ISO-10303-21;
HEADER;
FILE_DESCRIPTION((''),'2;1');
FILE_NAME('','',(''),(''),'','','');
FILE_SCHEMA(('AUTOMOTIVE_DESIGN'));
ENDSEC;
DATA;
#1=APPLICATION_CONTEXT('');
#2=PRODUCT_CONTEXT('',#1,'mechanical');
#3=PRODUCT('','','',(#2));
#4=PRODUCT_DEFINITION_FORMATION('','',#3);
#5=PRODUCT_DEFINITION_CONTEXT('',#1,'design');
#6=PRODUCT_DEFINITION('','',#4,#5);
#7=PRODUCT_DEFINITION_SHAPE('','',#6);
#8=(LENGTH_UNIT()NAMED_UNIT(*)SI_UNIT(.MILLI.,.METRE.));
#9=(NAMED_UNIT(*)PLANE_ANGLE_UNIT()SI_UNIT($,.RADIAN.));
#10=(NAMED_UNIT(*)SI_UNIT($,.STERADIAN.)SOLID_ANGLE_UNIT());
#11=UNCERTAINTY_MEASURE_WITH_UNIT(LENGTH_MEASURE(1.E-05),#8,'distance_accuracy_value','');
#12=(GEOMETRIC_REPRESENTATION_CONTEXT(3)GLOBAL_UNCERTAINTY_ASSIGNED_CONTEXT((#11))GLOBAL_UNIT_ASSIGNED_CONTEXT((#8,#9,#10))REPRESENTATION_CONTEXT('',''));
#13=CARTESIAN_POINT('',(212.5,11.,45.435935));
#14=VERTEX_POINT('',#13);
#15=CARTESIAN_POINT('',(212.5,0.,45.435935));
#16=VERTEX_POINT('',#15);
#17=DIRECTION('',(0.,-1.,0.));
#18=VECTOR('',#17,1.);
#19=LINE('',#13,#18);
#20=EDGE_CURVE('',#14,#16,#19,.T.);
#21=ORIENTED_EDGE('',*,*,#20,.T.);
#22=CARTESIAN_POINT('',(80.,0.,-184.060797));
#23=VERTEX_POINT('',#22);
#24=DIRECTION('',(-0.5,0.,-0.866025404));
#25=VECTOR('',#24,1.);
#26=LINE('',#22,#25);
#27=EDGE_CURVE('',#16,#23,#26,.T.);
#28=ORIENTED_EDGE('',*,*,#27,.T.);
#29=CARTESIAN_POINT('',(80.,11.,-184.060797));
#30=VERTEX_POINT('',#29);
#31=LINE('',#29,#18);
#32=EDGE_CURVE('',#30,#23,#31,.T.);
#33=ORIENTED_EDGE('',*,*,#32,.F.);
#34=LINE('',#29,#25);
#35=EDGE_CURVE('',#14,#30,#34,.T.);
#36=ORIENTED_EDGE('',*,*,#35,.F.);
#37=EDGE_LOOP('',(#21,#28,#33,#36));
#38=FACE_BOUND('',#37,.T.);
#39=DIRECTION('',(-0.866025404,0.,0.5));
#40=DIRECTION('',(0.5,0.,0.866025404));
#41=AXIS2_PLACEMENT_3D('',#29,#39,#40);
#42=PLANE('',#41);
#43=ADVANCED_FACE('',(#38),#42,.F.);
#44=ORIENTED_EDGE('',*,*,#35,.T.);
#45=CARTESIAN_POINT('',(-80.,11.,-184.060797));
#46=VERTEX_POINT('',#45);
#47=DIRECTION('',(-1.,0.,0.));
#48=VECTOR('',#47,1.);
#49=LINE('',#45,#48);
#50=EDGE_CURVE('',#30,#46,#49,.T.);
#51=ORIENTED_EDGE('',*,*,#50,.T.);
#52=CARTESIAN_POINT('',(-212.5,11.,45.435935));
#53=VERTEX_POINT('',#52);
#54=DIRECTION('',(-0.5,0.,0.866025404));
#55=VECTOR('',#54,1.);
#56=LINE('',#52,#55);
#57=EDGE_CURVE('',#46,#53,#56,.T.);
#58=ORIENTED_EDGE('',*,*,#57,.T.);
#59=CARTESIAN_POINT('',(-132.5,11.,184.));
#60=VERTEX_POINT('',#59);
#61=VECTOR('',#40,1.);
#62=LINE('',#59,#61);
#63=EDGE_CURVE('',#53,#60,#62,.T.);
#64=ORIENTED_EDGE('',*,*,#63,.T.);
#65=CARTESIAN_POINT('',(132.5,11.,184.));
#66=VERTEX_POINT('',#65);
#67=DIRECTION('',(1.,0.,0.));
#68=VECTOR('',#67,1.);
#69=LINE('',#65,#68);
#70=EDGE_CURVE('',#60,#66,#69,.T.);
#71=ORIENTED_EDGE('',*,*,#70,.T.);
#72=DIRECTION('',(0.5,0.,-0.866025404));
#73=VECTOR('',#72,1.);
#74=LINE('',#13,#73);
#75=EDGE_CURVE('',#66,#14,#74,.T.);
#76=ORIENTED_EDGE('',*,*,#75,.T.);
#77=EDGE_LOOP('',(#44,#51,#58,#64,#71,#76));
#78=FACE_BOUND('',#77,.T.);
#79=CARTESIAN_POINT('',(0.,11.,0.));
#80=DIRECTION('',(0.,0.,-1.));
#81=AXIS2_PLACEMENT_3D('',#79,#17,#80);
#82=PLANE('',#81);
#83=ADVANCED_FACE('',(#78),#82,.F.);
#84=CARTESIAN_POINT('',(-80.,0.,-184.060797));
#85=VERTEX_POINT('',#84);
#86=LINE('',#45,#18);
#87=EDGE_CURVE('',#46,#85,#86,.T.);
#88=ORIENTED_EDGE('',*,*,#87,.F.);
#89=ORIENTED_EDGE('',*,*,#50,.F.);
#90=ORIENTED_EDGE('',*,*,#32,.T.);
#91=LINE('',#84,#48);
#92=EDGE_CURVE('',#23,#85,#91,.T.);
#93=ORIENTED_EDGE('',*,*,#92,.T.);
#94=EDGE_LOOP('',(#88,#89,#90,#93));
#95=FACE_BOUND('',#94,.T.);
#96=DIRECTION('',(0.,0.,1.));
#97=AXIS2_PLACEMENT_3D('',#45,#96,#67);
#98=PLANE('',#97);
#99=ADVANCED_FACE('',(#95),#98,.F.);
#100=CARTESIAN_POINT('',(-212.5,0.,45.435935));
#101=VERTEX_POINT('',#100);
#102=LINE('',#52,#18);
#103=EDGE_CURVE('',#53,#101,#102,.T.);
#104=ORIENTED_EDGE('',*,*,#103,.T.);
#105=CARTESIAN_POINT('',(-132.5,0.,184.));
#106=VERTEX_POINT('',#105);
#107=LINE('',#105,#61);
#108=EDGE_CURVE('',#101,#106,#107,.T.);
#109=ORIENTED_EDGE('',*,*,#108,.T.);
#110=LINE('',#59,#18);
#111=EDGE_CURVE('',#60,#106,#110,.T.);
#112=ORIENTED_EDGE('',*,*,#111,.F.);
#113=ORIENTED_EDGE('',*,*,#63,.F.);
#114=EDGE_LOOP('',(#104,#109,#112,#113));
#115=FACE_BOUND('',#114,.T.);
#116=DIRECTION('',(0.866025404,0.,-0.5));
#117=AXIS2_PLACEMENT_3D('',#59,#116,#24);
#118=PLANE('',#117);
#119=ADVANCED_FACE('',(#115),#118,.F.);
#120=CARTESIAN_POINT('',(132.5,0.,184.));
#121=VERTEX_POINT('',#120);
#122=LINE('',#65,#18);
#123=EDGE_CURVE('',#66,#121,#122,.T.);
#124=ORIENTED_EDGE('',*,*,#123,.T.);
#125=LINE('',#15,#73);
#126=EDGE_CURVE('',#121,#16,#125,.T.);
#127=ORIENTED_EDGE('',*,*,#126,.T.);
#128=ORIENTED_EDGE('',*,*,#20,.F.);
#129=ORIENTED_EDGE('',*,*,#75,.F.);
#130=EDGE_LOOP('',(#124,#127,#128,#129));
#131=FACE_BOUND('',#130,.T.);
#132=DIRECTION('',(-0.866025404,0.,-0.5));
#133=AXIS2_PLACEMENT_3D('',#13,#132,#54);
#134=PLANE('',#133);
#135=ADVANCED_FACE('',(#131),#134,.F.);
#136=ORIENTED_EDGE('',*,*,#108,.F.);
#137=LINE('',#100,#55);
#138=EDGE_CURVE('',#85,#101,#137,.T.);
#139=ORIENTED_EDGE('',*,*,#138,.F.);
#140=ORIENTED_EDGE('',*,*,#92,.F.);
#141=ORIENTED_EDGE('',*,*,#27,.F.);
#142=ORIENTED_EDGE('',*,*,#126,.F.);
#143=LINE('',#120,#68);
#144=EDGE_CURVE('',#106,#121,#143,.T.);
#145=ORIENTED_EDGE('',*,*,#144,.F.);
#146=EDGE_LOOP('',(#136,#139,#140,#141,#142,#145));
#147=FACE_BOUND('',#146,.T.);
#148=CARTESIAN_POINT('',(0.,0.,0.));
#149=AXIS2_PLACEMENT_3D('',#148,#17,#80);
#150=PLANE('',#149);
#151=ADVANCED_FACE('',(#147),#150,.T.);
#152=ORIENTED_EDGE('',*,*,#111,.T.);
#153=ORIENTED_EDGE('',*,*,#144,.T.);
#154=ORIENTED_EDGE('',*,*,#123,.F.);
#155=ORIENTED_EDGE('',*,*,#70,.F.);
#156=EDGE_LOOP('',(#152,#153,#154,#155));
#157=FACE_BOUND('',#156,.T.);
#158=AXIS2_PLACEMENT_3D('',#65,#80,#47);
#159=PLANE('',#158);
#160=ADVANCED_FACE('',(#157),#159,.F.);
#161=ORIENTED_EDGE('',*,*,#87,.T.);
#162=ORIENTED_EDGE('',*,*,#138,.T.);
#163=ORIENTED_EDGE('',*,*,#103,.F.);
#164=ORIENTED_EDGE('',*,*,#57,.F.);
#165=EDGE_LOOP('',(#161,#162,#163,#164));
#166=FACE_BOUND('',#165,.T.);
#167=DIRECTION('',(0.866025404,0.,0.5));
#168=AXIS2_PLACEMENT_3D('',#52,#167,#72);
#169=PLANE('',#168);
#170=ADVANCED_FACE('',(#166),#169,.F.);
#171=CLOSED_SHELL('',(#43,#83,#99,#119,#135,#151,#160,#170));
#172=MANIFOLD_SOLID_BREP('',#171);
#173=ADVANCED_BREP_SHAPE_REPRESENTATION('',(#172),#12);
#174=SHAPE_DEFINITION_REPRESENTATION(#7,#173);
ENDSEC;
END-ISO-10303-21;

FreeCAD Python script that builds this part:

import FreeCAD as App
import Part
import Sketcher

V = App.Vector
Q = App.Units.Quantity

doc = App.newDocument("Part")
body = doc.addObject("PartDesign::Body", "Body")

# Sketch on XZ plane
sketch1 = doc.addObject("Sketcher::SketchObject", "Sketch")
body.addObject(sketch1)
sketch1.AttachmentSupport = (doc.XZ_Plane, [""])
sketch1.MapMode = "FlatFace"
sketch1.addGeometry([
    Part.LineSegment(V(80, -184, 0), V(-80, -184, 0)),  # 0
    Part.LineSegment(V(-80, -184, 0), V(-212, 45, 0)),  # 1
    Part.LineSegment(V(-212, 45, 0), V(-132, 184, 0)),  # 2
    Part.LineSegment(V(-132, 184, 0), V(132, 184, 0)),  # 3
    Part.LineSegment(V(132, 184, 0), V(212, 45, 0)),  # 4
    Part.LineSegment(V(212, 45, 0), V(80, -184, 0)),  # 5
], False)
sketch1.addConstraint([
    Sketcher.Constraint("Coincident", 0, 2, 1, 1),
    Sketcher.Constraint("Coincident", 1, 2, 2, 1),
    Sketcher.Constraint("Coincident", 2, 2, 3, 1),
    Sketcher.Constraint("Coincident", 3, 2, 4, 1),
    Sketcher.Constraint("Coincident", 4, 2, 5, 1),
    Sketcher.Constraint("Coincident", 5, 2, 0, 1),
    Sketcher.Constraint("Horizontal", 0),
    Sketcher.Constraint("Horizontal", 3),
    Sketcher.Constraint("Symmetric", 1, 2, 4, 2, -2),
    Sketcher.Constraint("Parallel", 1, 4),
    Sketcher.Constraint("Parallel", 2, 5),
    Sketcher.Constraint("Equal", 2, 4),
    Sketcher.Constraint("DistanceX", 0, 2, 0, 1, 160.0),
    Sketcher.Constraint("DistanceX", 3, 1, 3, 2, 265.0),
    Sketcher.Constraint("Angle", 1, Q("120 deg")),
    Sketcher.Constraint("Distance", 1, 265.0),
    Sketcher.Constraint("DistanceY", -1, 1, 2, 2, 184.0),
])
pad1 = doc.addObject("PartDesign::Pad", "Pad")
body.addObject(pad1)
pad1.Profile = sketch1
pad1.Length = 11
pad1.Reversed = True

doc.recompute()
